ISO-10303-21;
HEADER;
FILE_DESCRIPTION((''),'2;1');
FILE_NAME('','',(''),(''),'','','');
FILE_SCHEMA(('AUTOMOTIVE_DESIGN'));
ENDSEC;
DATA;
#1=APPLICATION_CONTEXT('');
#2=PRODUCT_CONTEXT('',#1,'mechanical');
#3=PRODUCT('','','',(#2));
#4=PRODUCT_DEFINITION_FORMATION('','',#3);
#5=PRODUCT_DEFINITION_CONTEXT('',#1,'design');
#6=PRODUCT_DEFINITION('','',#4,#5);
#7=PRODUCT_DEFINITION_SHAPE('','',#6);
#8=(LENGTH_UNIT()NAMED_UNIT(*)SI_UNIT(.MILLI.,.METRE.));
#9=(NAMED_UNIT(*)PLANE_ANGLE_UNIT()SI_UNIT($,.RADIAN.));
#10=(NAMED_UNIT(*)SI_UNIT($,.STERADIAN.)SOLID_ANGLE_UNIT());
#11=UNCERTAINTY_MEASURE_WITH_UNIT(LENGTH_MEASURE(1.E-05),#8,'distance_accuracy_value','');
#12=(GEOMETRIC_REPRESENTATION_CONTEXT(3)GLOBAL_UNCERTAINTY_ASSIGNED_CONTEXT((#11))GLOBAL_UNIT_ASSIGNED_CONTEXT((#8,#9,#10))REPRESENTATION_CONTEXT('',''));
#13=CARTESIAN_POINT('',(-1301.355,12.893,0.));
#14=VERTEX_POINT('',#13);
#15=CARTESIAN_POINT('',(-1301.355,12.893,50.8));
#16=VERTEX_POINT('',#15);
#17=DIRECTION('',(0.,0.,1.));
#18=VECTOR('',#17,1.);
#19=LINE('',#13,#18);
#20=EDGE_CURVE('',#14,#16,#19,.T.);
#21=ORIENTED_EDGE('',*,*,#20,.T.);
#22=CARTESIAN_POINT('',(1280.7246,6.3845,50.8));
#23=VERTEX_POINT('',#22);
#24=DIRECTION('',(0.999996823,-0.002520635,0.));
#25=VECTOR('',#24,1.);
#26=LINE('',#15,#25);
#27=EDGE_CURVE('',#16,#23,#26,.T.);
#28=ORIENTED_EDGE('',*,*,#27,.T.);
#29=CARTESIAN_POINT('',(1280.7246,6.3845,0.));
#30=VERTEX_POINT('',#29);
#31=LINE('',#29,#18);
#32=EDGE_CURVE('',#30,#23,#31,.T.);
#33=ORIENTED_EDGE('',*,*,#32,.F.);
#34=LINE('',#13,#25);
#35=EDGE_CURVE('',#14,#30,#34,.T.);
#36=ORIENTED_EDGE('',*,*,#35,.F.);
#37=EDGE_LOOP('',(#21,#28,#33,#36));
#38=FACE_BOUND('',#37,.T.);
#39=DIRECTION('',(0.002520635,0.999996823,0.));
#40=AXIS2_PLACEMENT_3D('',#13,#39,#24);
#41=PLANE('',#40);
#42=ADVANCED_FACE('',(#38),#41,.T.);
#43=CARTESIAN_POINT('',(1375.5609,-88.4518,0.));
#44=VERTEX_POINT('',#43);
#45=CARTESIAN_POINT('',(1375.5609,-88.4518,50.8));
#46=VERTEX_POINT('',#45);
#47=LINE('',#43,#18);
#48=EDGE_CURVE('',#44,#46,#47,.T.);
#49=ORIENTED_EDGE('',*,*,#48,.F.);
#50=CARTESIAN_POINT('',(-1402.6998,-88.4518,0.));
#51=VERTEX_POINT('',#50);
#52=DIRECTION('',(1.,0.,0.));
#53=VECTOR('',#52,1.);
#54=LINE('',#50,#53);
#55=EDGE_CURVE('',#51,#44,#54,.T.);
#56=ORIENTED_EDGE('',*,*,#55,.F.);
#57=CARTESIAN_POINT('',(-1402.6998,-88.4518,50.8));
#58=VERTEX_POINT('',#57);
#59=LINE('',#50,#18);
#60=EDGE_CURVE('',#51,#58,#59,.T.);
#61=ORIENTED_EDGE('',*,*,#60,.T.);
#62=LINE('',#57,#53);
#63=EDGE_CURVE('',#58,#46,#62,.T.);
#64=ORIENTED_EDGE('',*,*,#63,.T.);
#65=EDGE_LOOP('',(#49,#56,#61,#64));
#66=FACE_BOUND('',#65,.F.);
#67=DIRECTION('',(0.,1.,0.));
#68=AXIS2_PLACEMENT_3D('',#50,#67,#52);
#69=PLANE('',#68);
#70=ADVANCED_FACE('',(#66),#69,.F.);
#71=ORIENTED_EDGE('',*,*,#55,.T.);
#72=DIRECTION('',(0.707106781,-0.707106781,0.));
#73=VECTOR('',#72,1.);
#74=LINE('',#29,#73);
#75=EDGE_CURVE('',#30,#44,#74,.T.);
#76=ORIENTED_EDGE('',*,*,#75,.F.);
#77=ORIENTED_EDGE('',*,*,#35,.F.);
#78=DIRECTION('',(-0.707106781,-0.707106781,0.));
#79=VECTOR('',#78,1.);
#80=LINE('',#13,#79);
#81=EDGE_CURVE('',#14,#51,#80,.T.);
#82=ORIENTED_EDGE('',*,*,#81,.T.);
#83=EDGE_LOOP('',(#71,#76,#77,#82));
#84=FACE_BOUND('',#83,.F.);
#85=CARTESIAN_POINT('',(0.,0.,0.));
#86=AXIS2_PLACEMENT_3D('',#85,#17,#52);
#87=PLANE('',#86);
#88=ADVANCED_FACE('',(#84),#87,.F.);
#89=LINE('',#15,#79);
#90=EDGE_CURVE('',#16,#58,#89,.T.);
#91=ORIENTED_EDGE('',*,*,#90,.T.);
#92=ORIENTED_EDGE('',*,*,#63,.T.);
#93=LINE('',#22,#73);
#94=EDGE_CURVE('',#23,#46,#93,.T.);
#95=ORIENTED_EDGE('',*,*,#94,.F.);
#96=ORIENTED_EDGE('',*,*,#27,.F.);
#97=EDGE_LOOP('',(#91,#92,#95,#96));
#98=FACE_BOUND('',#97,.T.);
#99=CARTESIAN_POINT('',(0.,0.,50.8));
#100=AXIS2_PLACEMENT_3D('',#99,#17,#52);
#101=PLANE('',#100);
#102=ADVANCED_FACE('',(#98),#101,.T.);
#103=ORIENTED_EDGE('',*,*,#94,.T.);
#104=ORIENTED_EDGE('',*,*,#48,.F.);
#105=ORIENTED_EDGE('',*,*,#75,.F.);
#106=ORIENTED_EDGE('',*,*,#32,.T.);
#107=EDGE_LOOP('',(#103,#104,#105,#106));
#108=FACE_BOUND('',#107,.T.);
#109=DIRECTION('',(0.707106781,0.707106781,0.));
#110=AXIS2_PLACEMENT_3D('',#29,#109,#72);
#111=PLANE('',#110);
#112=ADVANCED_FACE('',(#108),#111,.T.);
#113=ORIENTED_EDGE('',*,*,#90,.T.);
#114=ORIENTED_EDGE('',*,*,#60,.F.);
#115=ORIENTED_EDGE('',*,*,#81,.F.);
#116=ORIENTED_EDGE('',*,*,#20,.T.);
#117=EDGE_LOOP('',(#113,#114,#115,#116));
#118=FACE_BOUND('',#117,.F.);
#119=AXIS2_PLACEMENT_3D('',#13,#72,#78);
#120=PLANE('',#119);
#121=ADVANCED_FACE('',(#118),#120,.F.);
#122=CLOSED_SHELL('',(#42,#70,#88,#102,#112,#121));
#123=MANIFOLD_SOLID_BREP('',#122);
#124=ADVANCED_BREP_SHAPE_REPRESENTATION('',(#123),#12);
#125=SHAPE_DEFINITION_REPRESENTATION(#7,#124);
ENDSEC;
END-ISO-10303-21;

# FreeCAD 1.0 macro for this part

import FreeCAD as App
import Part
import Sketcher
Q = App.Units.Quantity

doc = App.newDocument("Part")
body = doc.addObject("PartDesign::Body", "Body")

# Sketch on XY plane
sketch1 = doc.addObject("Sketcher::SketchObject", "Sketch")
body.addObject(sketch1)
sketch1.AttachmentSupport = (doc.XY_Plane, [""])
sketch1.MapMode = "FlatFace"
sketch1.addGeometry([
    Part.LineSegment(App.Vector(1280.7246, 6.3845, 0), App.Vector(-1301.355, 12.893, 0)),
    Part.LineSegment(App.Vector(-1301.355, 12.893, 0), App.Vector(-1402.6998, -88.4518, 0)),
    Part.LineSegment(App.Vector(-1402.6998, -88.4518, 0), App.Vector(1375.5609, -88.4518, 0)),
    Part.LineSegment(App.Vector(1375.5609, -88.4518, 0), App.Vector(1280.7246, 6.3845, 0)),
], False)
sketch1.addConstraint([
    Sketcher.Constraint("Coincident", 0, 2, 1, 1),
    Sketcher.Constraint("Coincident", 1, 2, 2, 1),
    Sketcher.Constraint("Coincident", 2, 2, 3, 1),
    Sketcher.Constraint("Coincident", 3, 2, 0, 1),
    Sketcher.Constraint("Horizontal", 2),
    Sketcher.Constraint("Perpendicular", 1, 3),
    Sketcher.Constraint("Angle", 1, Q("-135 deg")),
    Sketcher.Constraint("Distance", 0, Q("101.657 in")),
    Sketcher.Constraint("DistanceX", 2, 1, 2, 2, 2778.2607),
    Sketcher.Constraint("DistanceY", -1, 1, 0, 2, Q("0.5076 in")),
    Sketcher.Constraint("DistanceX", 1, 2, -1, 1, Q("55.2244 in")),
    Sketcher.Constraint("DistanceX", 0, 2, 2, 2, Q("105.3904 in")),
])
pad1 = doc.addObject("PartDesign::Pad", "Pad")
body.addObject(pad1)
pad1.Profile = sketch1
pad1.Length = Q("2 in")

doc.recompute()
